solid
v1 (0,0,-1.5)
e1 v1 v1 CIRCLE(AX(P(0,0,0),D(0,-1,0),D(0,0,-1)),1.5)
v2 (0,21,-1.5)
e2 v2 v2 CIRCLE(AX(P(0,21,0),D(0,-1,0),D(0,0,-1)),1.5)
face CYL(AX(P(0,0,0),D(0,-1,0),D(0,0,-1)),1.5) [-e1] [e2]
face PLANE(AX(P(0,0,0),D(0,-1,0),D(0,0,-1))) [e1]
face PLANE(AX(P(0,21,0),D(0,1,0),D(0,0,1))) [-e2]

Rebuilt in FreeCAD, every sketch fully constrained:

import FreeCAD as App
import Part
import Sketcher

V = App.Vector
Q = App.Units.Quantity

doc = App.newDocument("Part")
params = doc.addObject("Spreadsheet::Sheet", "Params")
for row, (alias, value) in enumerate([
    ("sketch1_height", "21 mm"),
    ("sketch1_width", "1.5 mm"),
    ("revolution_angle", "360 deg"),
], start=1):
    params.set(f"A{row}", alias)
    params.set(f"B{row}", "=" + value)
    params.setAlias(f"B{row}", alias)

body = doc.addObject("PartDesign::Body", "Body")

sketch1 = body.newObject("Sketcher::SketchObject", "Sketch")
sketch1.AttachmentSupport = (doc.getObject("XY_Plane"), [""])
sketch1.MapMode = "FlatFace"
sketch1.addGeometry([
    Part.LineSegment(V(0, 21, 0), V(0, 0, 0)),
    Part.LineSegment(V(0, 0, 0), V(1.5, 0, 0)),
    Part.LineSegment(V(1.5, 0, 0), V(1.5, 21, 0)),
    Part.LineSegment(V(1.5, 21, 0), V(0, 21, 0)),
], False)
sketch1.addConstraint([
    Sketcher.Constraint("Coincident", 0, 2, 1, 1),
    Sketcher.Constraint("Coincident", 1, 2, 2, 1),
    Sketcher.Constraint("Coincident", 2, 2, 3, 1),
    Sketcher.Constraint("Coincident", 3, 2, 0, 1),
    Sketcher.Constraint("Vertical", 0),
    Sketcher.Constraint("Horizontal", 1),
    Sketcher.Constraint("Vertical", 2),
    Sketcher.Constraint("Horizontal", 3),
    Sketcher.Constraint("Coincident", 0, 2, -1, 1),
    Sketcher.Constraint("DistanceY", 0, 2, 0, 1, Q("21 mm")),
    Sketcher.Constraint("DistanceX", 1, 1, 1, 2, Q("1.5 mm")),
])
sketch1.setExpression("Constraints[9]", "Params.sketch1_height")
sketch1.setExpression("Constraints[10]", "Params.sketch1_width")
revolution = body.newObject("PartDesign::Revolution", "Revolution")
revolution.Profile = sketch1
revolution.ReferenceAxis = (sketch1, ["V_Axis"])
revolution.setExpression("Angle", "Params.revolution_angle")

doc.recompute()
